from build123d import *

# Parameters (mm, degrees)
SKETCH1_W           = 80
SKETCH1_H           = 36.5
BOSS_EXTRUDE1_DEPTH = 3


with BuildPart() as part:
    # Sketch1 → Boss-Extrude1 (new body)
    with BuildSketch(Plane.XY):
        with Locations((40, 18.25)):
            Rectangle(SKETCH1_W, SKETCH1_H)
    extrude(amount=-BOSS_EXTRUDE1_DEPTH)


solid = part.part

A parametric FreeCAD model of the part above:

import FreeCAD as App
import Part
import Sketcher

V = App.Vector

doc = App.newDocument("Part")
params = doc.addObject("Spreadsheet::Sheet", "Params")
for row, (alias, value) in enumerate([
    ("sketch1_width", "80 mm"),
    ("sketch1_height", "36.5 mm"),
    ("pad1_length", "3 mm"),
], start=1):
    params.set(f"A{row}", alias)
    params.set(f"B{row}", "=" + value)
    params.setAlias(f"B{row}", alias)

body = doc.addObject("PartDesign::Body", "Body")

# Sketch on XY plane
sketch1 = doc.addObject("Sketcher::SketchObject", "Sketch")
body.addObject(sketch1)
sketch1.AttachmentSupport = (doc.XY_Plane, [""])
sketch1.MapMode = "FlatFace"
sketch1.addGeometry([
    Part.LineSegment(V(0, 36, 0), V(0, 0, 0)),
    Part.LineSegment(V(0, 0, 0), V(80, 0, 0)),
    Part.LineSegment(V(80, 0, 0), V(80, 36, 0)),
    Part.LineSegment(V(80, 36, 0), V(0, 36, 0)),
], False)
sketch1.addConstraint([
    Sketcher.Constraint("Coincident", 0, 2, 1, 1),
    Sketcher.Constraint("Coincident", 1, 2, 2, 1),
    Sketcher.Constraint("Coincident", 2, 2, 3, 1),
    Sketcher.Constraint("Coincident", 3, 2, 0, 1),
    Sketcher.Constraint("Vertical", 0),
    Sketcher.Constraint("Horizontal", 1),
    Sketcher.Constraint("Vertical", 2),
    Sketcher.Constraint("Horizontal", 3),
    Sketcher.Constraint("Coincident", 0, 2, -1, 1),
    Sketcher.Constraint("DistanceX", 1, 1, 1, 2, 80.0),
    Sketcher.Constraint("DistanceY", 0, 2, 0, 1, 36.5),
])
sketch1.setExpression("Constraints[9]", "Params.sketch1_width")
sketch1.setExpression("Constraints[10]", "Params.sketch1_height")
pad1 = doc.addObject("PartDesign::Pad", "Pad")
body.addObject(pad1)
pad1.Profile = sketch1
pad1.setExpression("Length", "Params.pad1_length")
pad1.Reversed = True

doc.recompute()
